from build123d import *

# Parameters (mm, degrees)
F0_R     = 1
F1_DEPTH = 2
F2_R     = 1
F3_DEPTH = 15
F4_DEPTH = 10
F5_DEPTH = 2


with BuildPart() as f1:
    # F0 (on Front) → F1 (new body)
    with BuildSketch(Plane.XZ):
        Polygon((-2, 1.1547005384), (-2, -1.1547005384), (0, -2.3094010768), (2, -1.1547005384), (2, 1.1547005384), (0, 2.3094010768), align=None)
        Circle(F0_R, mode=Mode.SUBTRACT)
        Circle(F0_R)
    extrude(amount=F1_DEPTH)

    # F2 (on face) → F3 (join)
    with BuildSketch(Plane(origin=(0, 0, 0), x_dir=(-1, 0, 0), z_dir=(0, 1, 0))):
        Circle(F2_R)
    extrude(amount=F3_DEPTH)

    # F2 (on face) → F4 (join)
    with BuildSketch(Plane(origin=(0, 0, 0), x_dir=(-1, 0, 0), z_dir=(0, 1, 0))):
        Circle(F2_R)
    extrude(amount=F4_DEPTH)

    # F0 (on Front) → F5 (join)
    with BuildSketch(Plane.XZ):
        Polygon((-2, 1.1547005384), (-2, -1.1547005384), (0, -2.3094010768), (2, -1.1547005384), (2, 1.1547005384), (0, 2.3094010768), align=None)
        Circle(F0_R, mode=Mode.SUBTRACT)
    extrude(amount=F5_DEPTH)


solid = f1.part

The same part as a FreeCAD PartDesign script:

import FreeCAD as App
import Part
import Sketcher
Q = App.Units.Quantity


def add_polygon(sketch, points):
    """Adds a closed chain of lines whose ends are joined by coincident constraints."""
    first, n = sketch.GeometryCount, len(points)
    for a, b in zip(points, points[1:] + points[:1]):
        sketch.addGeometry(Part.LineSegment(App.Vector(*a, 0), App.Vector(*b, 0)), False)
    for i in range(n):
        sketch.addConstraint(Sketcher.Constraint("Coincident", first + i, 2, first + (i + 1) % n, 1))

doc = App.newDocument("Part")
body = doc.addObject("PartDesign::Body", "Body")

sketch1 = body.newObject("Sketcher::SketchObject", "Sketch")
sketch1.AttachmentSupport = (doc.getObject("XZ_Plane"), [""])
sketch1.MapMode = "FlatFace"
add_polygon(sketch1, [(-2, 1.154701), (-2, -1.154701), (0, -2.309401), (2, -1.154701), (2, 1.154701), (0, 2.309401)])
sketch1.addConstraint(Sketcher.Constraint("Vertical", 0))
sketch1.addConstraint(Sketcher.Constraint("Vertical", 3))
sketch1.addConstraint(Sketcher.Constraint("Symmetric", 0, 2, 3, 2, -1, 1))
sketch1.addConstraint(Sketcher.Constraint("Symmetric", 1, 2, 4, 2, -1, 1))
sketch1.addConstraint(Sketcher.Constraint("PointOnObject", 1, 2, -2))
sketch1.addConstraint(Sketcher.Constraint("Parallel", 2, 5))
sketch1.addConstraint(Sketcher.Constraint("Horizontal", 0, 2, 2, 2))
sketch1.addConstraint(Sketcher.Constraint("Angle", 1, Q("-30 deg")))
sketch1.addConstraint(Sketcher.Constraint("DistanceX", 0, 2, -1, 1, Q("2 mm")))
sketch1.addConstraint(Sketcher.Constraint("DistanceY", 0, 2, 0, 1, Q("2.309401 mm")))
pad1 = body.newObject("PartDesign::Pad", "Pad")
pad1.Profile = sketch1
pad1.Length = 2

sketch2 = body.newObject("Sketcher::SketchObject", "Sketch001")
sketch2.AttachmentSupport = (doc.getObject("XZ_Plane"), [""])
sketch2.MapMode = "FlatFace"
sketch2.addGeometry(Part.Circle(App.Vector(0, 0, 0), App.Vector(0, 0, 1), 1), False)
sketch2.addConstraint(Sketcher.Constraint("Coincident", 0, 3, -1, 1))
sketch2.addConstraint(Sketcher.Constraint("Diameter", 0, Q("2 mm")))
pad2 = body.newObject("PartDesign::Pad", "Pad001")
pad2.Profile = sketch2
pad2.Length = 15
pad2.Reversed = True

sketch3 = body.newObject("Sketcher::SketchObject", "Sketch002")
sketch3.AttachmentSupport = (doc.getObject("XZ_Plane"), [""])
sketch3.MapMode = "FlatFace"
sketch3.addGeometry(Part.Circle(App.Vector(0, 0, 0), App.Vector(0, 0, 1), 1), False)
sketch3.addConstraint(Sketcher.Constraint("Coincident", 0, 3, -1, 1))
sketch3.addConstraint(Sketcher.Constraint("Diameter", 0, Q("2 mm")))
pad3 = body.newObject("PartDesign::Pad", "Pad002")
pad3.Profile = sketch3
pad3.Length = 10
pad3.Reversed = True

sketch4 = body.newObject("Sketcher::SketchObject", "Sketch003")
sketch4.AttachmentSupport = (doc.getObject("XZ_Plane"), [""])
sketch4.MapMode = "FlatFace"
add_polygon(sketch4, [(-2, 1.154701), (-2, -1.154701), (0, -2.309401), (2, -1.154701), (2, 1.154701), (0, 2.309401)])
sketch4.addGeometry(Part.Circle(App.Vector(0, 0, 0), App.Vector(0, 0, 1), 1), False)
sketch4.addConstraint(Sketcher.Constraint("Vertical", 0))
sketch4.addConstraint(Sketcher.Constraint("Vertical", 3))
sketch4.addConstraint(Sketcher.Constraint("Coincident", 6, 3, -1, 1))
sketch4.addConstraint(Sketcher.Constraint("Symmetric", 0, 2, 3, 2, -1, 1))
sketch4.addConstraint(Sketcher.Constraint("Symmetric", 1, 2, 4, 2, -1, 1))
sketch4.addConstraint(Sketcher.Constraint("PointOnObject", 1, 2, -2))
sketch4.addConstraint(Sketcher.Constraint("Parallel", 2, 5))
sketch4.addConstraint(Sketcher.Constraint("Horizontal", 0, 2, 2, 2))
sketch4.addConstraint(Sketcher.Constraint("Diameter", 6, Q("2 mm")))
sketch4.addConstraint(Sketcher.Constraint("Angle", 1, Q("-30 deg")))
sketch4.addConstraint(Sketcher.Constraint("DistanceX", 0, 2, -1, 1, Q("2 mm")))
sketch4.addConstraint(Sketcher.Constraint("DistanceY", 0, 2, 0, 1, Q("2.309401 mm")))
pad4 = body.newObject("PartDesign::Pad", "Pad003")
pad4.Profile = sketch4
pad4.Length = 2

doc.recompute()
